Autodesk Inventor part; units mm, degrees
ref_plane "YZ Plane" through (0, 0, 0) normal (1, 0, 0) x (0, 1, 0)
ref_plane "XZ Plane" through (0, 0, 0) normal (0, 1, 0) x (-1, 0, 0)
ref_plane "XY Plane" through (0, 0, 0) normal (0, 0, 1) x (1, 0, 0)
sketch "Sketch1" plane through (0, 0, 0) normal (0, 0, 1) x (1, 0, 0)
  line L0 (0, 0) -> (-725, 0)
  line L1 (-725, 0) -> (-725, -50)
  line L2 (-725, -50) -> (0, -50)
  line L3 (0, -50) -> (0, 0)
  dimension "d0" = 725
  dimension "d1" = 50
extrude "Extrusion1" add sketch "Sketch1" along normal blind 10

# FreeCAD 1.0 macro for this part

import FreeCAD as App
import Part
import Sketcher


def add_polygon(sketch, points):
    """Adds a closed chain of lines whose ends are joined by coincident constraints."""
    first, n = sketch.GeometryCount, len(points)
    for a, b in zip(points, points[1:] + points[:1]):
        sketch.addGeometry(Part.LineSegment(App.Vector(*a, 0), App.Vector(*b, 0)), False)
    for i in range(n):
        sketch.addConstraint(Sketcher.Constraint("Coincident", first + i, 2, first + (i + 1) % n, 1))

doc = App.newDocument("Part")
body = doc.addObject("PartDesign::Body", "Body")

sketch1 = doc.addObject("Sketcher::SketchObject", "Sketch")
body.addObject(sketch1)
sketch1.AttachmentSupport = (doc.XY_Plane, [""])
sketch1.MapMode = "FlatFace"
add_polygon(sketch1, [(0, -50), (0, 0), (-725, 0), (-725, -50)])
sketch1.addConstraint(Sketcher.Constraint("Vertical", 0))
sketch1.addConstraint(Sketcher.Constraint("Horizontal", 1))
sketch1.addConstraint(Sketcher.Constraint("Vertical", 2))
sketch1.addConstraint(Sketcher.Constraint("Horizontal", 3))
sketch1.addConstraint(Sketcher.Constraint("Coincident", 0, 2, -1, 1))
sketch1.addConstraint(Sketcher.Constraint("DistanceX", 1, 2, 1, 1, 725.0))
sketch1.addConstraint(Sketcher.Constraint("DistanceY", 0, 1, 0, 2, 50.0))
pad1 = doc.addObject("PartDesign::Pad", "Pad")
body.addObject(pad1)
pad1.Profile = sketch1
pad1.Length = 10

doc.recompute()
